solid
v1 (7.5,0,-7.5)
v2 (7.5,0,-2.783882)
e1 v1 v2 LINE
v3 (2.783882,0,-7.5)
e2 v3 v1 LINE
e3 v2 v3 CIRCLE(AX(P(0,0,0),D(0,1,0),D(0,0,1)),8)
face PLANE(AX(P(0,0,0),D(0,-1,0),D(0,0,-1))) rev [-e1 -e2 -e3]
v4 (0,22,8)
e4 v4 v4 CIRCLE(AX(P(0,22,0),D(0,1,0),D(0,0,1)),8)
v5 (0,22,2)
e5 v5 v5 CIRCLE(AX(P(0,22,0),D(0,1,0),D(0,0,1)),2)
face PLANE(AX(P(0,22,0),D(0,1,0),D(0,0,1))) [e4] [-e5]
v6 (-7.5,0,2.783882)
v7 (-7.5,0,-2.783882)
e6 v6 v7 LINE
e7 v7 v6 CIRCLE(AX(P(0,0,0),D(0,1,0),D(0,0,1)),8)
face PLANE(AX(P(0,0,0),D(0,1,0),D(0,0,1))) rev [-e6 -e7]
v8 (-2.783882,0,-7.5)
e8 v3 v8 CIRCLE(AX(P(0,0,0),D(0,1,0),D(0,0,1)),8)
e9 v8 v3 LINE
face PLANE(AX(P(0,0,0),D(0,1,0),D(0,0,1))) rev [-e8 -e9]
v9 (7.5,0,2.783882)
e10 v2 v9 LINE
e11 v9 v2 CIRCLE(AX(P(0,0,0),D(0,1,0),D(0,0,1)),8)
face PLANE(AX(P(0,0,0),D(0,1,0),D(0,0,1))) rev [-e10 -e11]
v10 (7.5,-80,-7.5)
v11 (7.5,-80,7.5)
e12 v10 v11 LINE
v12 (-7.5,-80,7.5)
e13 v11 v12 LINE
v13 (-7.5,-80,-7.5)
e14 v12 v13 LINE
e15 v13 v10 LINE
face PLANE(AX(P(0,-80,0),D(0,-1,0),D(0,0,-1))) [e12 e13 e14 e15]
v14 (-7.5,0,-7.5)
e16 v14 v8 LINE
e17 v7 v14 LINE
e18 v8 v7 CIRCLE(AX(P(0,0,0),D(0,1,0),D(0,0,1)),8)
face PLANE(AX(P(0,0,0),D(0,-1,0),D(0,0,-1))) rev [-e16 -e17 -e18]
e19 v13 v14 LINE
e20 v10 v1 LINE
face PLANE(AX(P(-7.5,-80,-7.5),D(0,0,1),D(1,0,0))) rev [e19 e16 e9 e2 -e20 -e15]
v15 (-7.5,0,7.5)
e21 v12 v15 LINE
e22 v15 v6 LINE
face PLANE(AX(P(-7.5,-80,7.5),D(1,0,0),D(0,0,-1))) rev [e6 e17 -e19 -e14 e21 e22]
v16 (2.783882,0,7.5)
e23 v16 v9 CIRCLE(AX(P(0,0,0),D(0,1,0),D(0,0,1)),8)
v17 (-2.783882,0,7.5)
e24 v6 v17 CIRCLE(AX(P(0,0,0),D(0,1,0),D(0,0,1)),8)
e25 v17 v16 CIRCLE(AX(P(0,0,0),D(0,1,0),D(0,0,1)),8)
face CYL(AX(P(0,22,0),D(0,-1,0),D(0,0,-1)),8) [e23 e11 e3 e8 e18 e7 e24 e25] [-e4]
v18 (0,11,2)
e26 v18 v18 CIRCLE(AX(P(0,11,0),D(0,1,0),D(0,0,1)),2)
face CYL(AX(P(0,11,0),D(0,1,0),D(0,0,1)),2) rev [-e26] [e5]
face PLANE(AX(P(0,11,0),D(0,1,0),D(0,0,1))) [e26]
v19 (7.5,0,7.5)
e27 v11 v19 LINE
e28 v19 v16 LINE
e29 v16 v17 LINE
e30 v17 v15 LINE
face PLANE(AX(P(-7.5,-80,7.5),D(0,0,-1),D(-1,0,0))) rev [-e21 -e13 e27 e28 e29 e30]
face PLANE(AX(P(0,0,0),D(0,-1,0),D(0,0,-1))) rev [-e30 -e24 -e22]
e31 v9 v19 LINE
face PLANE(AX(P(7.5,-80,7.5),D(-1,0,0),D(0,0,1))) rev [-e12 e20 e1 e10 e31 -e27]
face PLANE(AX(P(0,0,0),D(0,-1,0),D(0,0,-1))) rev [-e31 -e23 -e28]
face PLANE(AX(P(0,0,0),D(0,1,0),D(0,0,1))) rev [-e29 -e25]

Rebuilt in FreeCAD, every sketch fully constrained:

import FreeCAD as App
import Part
import Sketcher
from FreeCAD import Vector


def add_polygon(sketch, points):
    """Adds a closed chain of lines whose ends are joined by coincident constraints."""
    first, n = sketch.GeometryCount, len(points)
    for a, b in zip(points, points[1:] + points[:1]):
        sketch.addGeometry(Part.LineSegment(App.Vector(*a, 0), App.Vector(*b, 0)), False)
    for i in range(n):
        sketch.addConstraint(Sketcher.Constraint("Coincident", first + i, 2, first + (i + 1) % n, 1))

doc = App.newDocument("Part")
params = doc.addObject("Spreadsheet::Sheet", "Params")
for row, (alias, value) in enumerate([
    ("sketch1_diameter", "16 mm"),
    ("pad1_length", "22 mm"),
    ("sketch2_width", "15 mm"),
    ("pad2_length", "80 mm"),
    ("sketch3_diameter", "4 mm"),
    ("pocket1_length", "11 mm"),
], start=1):
    params.set(f"A{row}", alias)
    params.set(f"B{row}", "=" + value)
    params.setAlias(f"B{row}", alias)

body = doc.addObject("PartDesign::Body", "Body")

# Sketch on XZ plane
sketch1 = body.newObject("Sketcher::SketchObject", "Sketch")
sketch1.AttachmentSupport = (doc.getObject("XZ_Plane"), [""])
sketch1.MapMode = "FlatFace"
sketch1.addGeometry(Part.Circle(Vector(0, 0, 0), Vector(0, 0, 1), 8), False)
sketch1.addConstraint([
    Sketcher.Constraint("Coincident", 0, 3, -1, 1),
    Sketcher.Constraint("Diameter", 0, 16.0),
])
sketch1.setExpression("Constraints[1]", "Params.sketch1_diameter")
pad1 = body.newObject("PartDesign::Pad", "Pad")
pad1.Profile = sketch1
pad1.setExpression("Length", "Params.pad1_length")
pad1.Reversed = True

# Sketch on XZ plane
sketch2 = body.newObject("Sketcher::SketchObject", "Sketch001")
sketch2.AttachmentSupport = (doc.getObject("XZ_Plane"), [""])
sketch2.MapMode = "FlatFace"
add_polygon(sketch2, [(-8, 8), (-8, -8), (8, -8), (8, 8)])  # lines 0-3
sketch2.addConstraint([
    Sketcher.Constraint("Vertical", 0),
    Sketcher.Constraint("Horizontal", 1),
    Sketcher.Constraint("Vertical", 2),
    Sketcher.Constraint("Horizontal", 3),
    Sketcher.Constraint("Symmetric", 0, 2, 2, 2, -1, 1),
    Sketcher.Constraint("Equal", 3, 0),
    Sketcher.Constraint("DistanceX", 1, 1, 1, 2, 15.0),
])
sketch2.setExpression("Constraints[10]", "Params.sketch2_width")
pad2 = body.newObject("PartDesign::Pad", "Pad001")
pad2.Profile = sketch2
pad2.setExpression("Length", "Params.pad2_length")

# Sketch on XZ plane
sketch3 = body.newObject("Sketcher::SketchObject", "Sketch002")
sketch3.AttachmentSupport = (doc.getObject("XZ_Plane"), [""])
sketch3.MapMode = "FlatFace"
sketch3.AttachmentOffset = App.Placement(Vector(0, 0, -22), App.Rotation())
sketch3.addGeometry(Part.Circle(Vector(0, 0, 0), Vector(0, 0, 1), 2), False)
sketch3.addConstraint([
    Sketcher.Constraint("Coincident", 0, 3, -1, 1),
    Sketcher.Constraint("Diameter", 0, 4.0),
])
sketch3.setExpression("Constraints[1]", "Params.sketch3_diameter")
pocket1 = body.newObject("PartDesign::Pocket", "Pocket")
pocket1.Profile = sketch3
pocket1.setExpression("Length", "Params.pocket1_length")
pocket1.Reversed = True

doc.recompute()
